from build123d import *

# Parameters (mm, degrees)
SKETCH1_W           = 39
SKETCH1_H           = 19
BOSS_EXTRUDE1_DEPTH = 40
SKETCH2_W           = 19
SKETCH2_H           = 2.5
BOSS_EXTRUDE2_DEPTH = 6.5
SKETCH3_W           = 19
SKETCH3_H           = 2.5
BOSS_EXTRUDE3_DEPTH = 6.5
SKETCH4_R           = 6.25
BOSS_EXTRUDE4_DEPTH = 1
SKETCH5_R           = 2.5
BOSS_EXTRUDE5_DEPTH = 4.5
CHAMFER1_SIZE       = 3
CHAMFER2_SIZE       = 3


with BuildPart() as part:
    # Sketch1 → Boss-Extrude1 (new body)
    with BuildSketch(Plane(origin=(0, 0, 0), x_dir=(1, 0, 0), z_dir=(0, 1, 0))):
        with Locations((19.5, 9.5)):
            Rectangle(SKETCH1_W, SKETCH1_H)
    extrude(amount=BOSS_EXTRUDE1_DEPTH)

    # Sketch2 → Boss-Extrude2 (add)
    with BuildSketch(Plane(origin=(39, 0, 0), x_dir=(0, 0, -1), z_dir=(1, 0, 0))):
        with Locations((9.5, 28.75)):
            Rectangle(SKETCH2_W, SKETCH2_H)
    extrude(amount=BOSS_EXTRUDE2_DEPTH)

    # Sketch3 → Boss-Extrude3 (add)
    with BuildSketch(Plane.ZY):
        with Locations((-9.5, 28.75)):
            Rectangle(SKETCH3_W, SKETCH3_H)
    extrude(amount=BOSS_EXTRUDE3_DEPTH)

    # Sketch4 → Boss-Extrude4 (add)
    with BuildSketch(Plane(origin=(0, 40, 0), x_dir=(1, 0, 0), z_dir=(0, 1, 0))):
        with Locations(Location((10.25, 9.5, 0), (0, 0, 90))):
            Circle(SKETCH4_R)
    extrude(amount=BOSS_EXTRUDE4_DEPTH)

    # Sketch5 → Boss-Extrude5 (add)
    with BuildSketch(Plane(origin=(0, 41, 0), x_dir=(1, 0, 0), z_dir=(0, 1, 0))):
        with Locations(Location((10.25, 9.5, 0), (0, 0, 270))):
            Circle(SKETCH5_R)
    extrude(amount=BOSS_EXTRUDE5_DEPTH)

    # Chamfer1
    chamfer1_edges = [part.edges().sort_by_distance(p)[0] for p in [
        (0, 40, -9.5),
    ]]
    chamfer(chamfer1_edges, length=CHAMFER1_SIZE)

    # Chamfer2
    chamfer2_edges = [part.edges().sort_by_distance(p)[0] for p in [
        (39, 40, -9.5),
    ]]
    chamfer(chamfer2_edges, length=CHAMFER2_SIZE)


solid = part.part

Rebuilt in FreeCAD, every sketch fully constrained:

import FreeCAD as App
import Part
import Sketcher

V = App.Vector
Q = App.Units.Quantity


def edges_at(feature, points):
    """Names of the edges that pass closest to the given points."""
    edges = feature.Shape.Edges
    near = lambda p: min(range(len(edges)), key=lambda i: edges[i].distToShape(Part.Vertex(*p))[0])
    return sorted({f"Edge{near(p) + 1}" for p in points})


def add_polygon(sketch, points):
    """Adds a closed chain of lines whose ends are joined by coincident constraints."""
    first, n = sketch.GeometryCount, len(points)
    for a, b in zip(points, points[1:] + points[:1]):
        sketch.addGeometry(Part.LineSegment(App.Vector(*a, 0), App.Vector(*b, 0)), False)
    for i in range(n):
        sketch.addConstraint(Sketcher.Constraint("Coincident", first + i, 2, first + (i + 1) % n, 1))

doc = App.newDocument("Part")
body = doc.addObject("PartDesign::Body", "Body")

sketch1 = doc.addObject("Sketcher::SketchObject", "Sketch")
body.addObject(sketch1)
sketch1.AttachmentSupport = (doc.XZ_Plane, [""])
sketch1.MapMode = "FlatFace"
add_polygon(sketch1, [(0, -19), (0, 0), (39, 0), (39, -19)])
sketch1.addConstraint([
    Sketcher.Constraint("Vertical", 0),
    Sketcher.Constraint("Horizontal", 1),
    Sketcher.Constraint("Vertical", 2),
    Sketcher.Constraint("Horizontal", 3),
    Sketcher.Constraint("Coincident", 0, 2, -1, 1),
    Sketcher.Constraint("DistanceX", 1, 1, 1, 2, Q("39 mm")),
    Sketcher.Constraint("DistanceY", 0, 1, 0, 2, Q("19 mm")),
])
pad1 = doc.addObject("PartDesign::Pad", "Pad")
body.addObject(pad1)
pad1.Profile = sketch1
pad1.Length = 40
pad1.Reversed = True

sketch2 = doc.addObject("Sketcher::SketchObject", "Sketch001")
body.addObject(sketch2)
sketch2.AttachmentSupport = (doc.YZ_Plane, [""])
sketch2.MapMode = "FlatFace"
sketch2.AttachmentOffset = App.Placement(V(0, 0, 39), App.Rotation())
add_polygon(sketch2, [(30, 0), (27.5, 0), (27.5, -19), (30, -19)])
sketch2.addConstraint([
    Sketcher.Constraint("Horizontal", 0),
    Sketcher.Constraint("Vertical", 1),
    Sketcher.Constraint("Horizontal", 2),
    Sketcher.Constraint("Vertical", 3),
    Sketcher.Constraint("PointOnObject", 0, 2, -1),
    Sketcher.Constraint("DistanceY", 1, 2, 1, 1, Q("19 mm")),
    Sketcher.Constraint("DistanceX", 0, 2, 0, 1, Q("2.5 mm")),
    Sketcher.Constraint("DistanceX", -1, 1, 2, 2, Q("30 mm")),
])
pad2 = doc.addObject("PartDesign::Pad", "Pad001")
body.addObject(pad2)
pad2.Profile = sketch2
pad2.Length = 6.5

sketch3 = doc.addObject("Sketcher::SketchObject", "Sketch002")
body.addObject(sketch3)
sketch3.AttachmentSupport = (doc.YZ_Plane, [""])
sketch3.MapMode = "FlatFace"
add_polygon(sketch3, [(30, -19), (27.5, -19), (27.5, 0), (30, 0)])
sketch3.addConstraint([
    Sketcher.Constraint("Horizontal", 0),
    Sketcher.Constraint("Vertical", 1),
    Sketcher.Constraint("Horizontal", 2),
    Sketcher.Constraint("Vertical", 3),
    Sketcher.Constraint("PointOnObject", 1, 2, -1),
    Sketcher.Constraint("DistanceY", 1, 1, 1, 2, Q("19 mm")),
    Sketcher.Constraint("DistanceX", 0, 2, 0, 1, Q("2.5 mm")),
    Sketcher.Constraint("DistanceX", -1, 1, 2, 2, Q("30 mm")),
])
pad3 = doc.addObject("PartDesign::Pad", "Pad002")
body.addObject(pad3)
pad3.Profile = sketch3
pad3.Length = 6.5
pad3.Reversed = True

sketch4 = doc.addObject("Sketcher::SketchObject", "Sketch003")
body.addObject(sketch4)
sketch4.AttachmentSupport = (doc.XZ_Plane, [""])
sketch4.MapMode = "FlatFace"
sketch4.AttachmentOffset = App.Placement(V(0, 0, -40), App.Rotation())
sketch4.addGeometry(Part.Circle(V(10.25, -9.5, 0), V(0, 0, 1), 6.25), False)
sketch4.addConstraint([
    Sketcher.Constraint("Diameter", 0, Q("12.5 mm")),
    Sketcher.Constraint("DistanceY", 0, 3, -1, 1, Q("9.5 mm")),
    Sketcher.Constraint("DistanceX", -1, 1, 0, 3, Q("10.25 mm")),
])
pad4 = doc.addObject("PartDesign::Pad", "Pad003")
body.addObject(pad4)
pad4.Profile = sketch4
pad4.Length = 1
pad4.Reversed = True

sketch5 = doc.addObject("Sketcher::SketchObject", "Sketch004")
body.addObject(sketch5)
sketch5.AttachmentSupport = (doc.XZ_Plane, [""])
sketch5.MapMode = "FlatFace"
sketch5.AttachmentOffset = App.Placement(V(0, 0, -41), App.Rotation())
sketch5.addGeometry(Part.Circle(V(10.25, -9.5, 0), V(0, 0, 1), 2.5), False)
sketch5.addConstraint([
    Sketcher.Constraint("Diameter", 0, Q("5 mm")),
    Sketcher.Constraint("DistanceY", 0, 3, -1, 1, Q("9.5 mm")),
    Sketcher.Constraint("DistanceX", -1, 1, 0, 3, Q("10.25 mm")),
])
pad5 = doc.addObject("PartDesign::Pad", "Pad004")
body.addObject(pad5)
pad5.Profile = sketch5
pad5.Length = 4.5
pad5.Reversed = True
doc.recompute()

chamfer = doc.addObject("PartDesign::Chamfer", "Chamfer")
body.addObject(chamfer)
chamfer.Base = (pad5, edges_at(pad5, [(0, 40, -9.5)]))
chamfer.Size = 3
doc.recompute()

chamfer2 = doc.addObject("PartDesign::Chamfer", "Chamfer001")
body.addObject(chamfer2)
chamfer2.Base = (chamfer, edges_at(chamfer, [(39, 40, -9.5)]))
chamfer2.Size = 3

doc.recompute()
